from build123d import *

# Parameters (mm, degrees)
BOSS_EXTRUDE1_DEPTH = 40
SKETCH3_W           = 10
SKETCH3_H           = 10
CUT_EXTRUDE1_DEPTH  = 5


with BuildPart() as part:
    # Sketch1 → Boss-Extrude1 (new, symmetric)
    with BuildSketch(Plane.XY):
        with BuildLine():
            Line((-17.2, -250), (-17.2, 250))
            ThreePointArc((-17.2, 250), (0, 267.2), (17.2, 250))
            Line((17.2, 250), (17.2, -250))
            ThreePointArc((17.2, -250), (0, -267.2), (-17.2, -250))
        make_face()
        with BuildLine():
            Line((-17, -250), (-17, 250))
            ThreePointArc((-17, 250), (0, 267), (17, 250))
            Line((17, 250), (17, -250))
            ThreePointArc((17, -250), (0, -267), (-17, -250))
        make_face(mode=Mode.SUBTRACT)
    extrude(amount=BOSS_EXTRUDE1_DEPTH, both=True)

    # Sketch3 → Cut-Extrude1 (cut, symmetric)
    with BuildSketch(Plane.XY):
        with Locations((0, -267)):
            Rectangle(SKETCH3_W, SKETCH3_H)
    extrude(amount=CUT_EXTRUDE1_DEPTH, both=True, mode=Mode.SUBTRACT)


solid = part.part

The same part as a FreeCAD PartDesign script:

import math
import FreeCAD as App
import Part
import Sketcher
Q = App.Units.Quantity


def add_polygon(sketch, points):
    """Adds a closed chain of lines whose ends are joined by coincident constraints."""
    first, n = sketch.GeometryCount, len(points)
    for a, b in zip(points, points[1:] + points[:1]):
        sketch.addGeometry(Part.LineSegment(App.Vector(*a, 0), App.Vector(*b, 0)), False)
    for i in range(n):
        sketch.addConstraint(Sketcher.Constraint("Coincident", first + i, 2, first + (i + 1) % n, 1))

doc = App.newDocument("Part")
params = doc.addObject("Spreadsheet::Sheet", "Params")
for row, (alias, value) in enumerate([
    ("sketch1_radius", "17 mm"),
    ("sketch1_radius2", "17.2 mm"),
    ("sketch1_height", "500 mm"),
    ("pad1_length", "80 mm"),
    ("sketch2_width", "10 mm"),
    ("pocket1_length", "10 mm"),
], start=1):
    params.set(f"A{row}", alias)
    params.set(f"B{row}", "=" + value)
    params.setAlias(f"B{row}", alias)

body = doc.addObject("PartDesign::Body", "Body")

# Sketch on XY plane
sketch1 = body.newObject("Sketcher::SketchObject", "Sketch")
sketch1.AttachmentSupport = (doc.getObject("XY_Plane"), [""])
sketch1.MapMode = "FlatFace"
sketch1.addGeometry([
    Part.LineSegment(App.Vector(-17, 250, 0), App.Vector(-17, -250, 0)),  # 0
    Part.ArcOfCircle(Part.Circle(App.Vector(0, -250, 0), App.Vector(0, 0, 1), 17), math.radians(180), math.radians(360)),  # 1
    Part.LineSegment(App.Vector(17, -250, 0), App.Vector(17, 250, 0)),  # 2
    Part.ArcOfCircle(Part.Circle(App.Vector(0, 250, 0), App.Vector(0, 0, 1), 17), math.radians(0), math.radians(180)),  # 3
    Part.LineSegment(App.Vector(-17, -250, 0), App.Vector(-17, 250, 0)),  # 4
    Part.ArcOfCircle(Part.Circle(App.Vector(0, 250, 0), App.Vector(0, 0, 1), 17), math.radians(0), math.radians(180)),  # 5
    Part.LineSegment(App.Vector(17, 250, 0), App.Vector(17, -250, 0)),  # 6
    Part.ArcOfCircle(Part.Circle(App.Vector(0, -250, 0), App.Vector(0, 0, 1), 17), math.radians(180), math.radians(360)),  # 7
], False)
sketch1.addConstraint([
    Sketcher.Constraint("Tangent", 0, 2, 1, 1),
    Sketcher.Constraint("Tangent", 1, 2, 2, 1),
    Sketcher.Constraint("Tangent", 2, 2, 3, 1),
    Sketcher.Constraint("Tangent", 3, 2, 0, 1),
    Sketcher.Constraint("Tangent", 4, 2, 5, 2),
    Sketcher.Constraint("Tangent", 5, 1, 6, 1),
    Sketcher.Constraint("Tangent", 6, 2, 7, 2),
    Sketcher.Constraint("Tangent", 7, 1, 4, 1),
    Sketcher.Constraint("Vertical", 0),
    Sketcher.Constraint("Vertical", 2),
    Sketcher.Constraint("Vertical", 4),
    Sketcher.Constraint("Vertical", 6),
    Sketcher.Constraint("Coincident", 5, 3, 3, 3),
    Sketcher.Constraint("Symmetric", 1, 3, 3, 3, -1, 1),
    Sketcher.Constraint("Horizontal", 7, 3, 0, 2),
    Sketcher.Constraint("Radius", 5, Q("17 mm")),
    Sketcher.Constraint("Radius", 1, Q("17.2 mm")),
    Sketcher.Constraint("DistanceY", 0, 2, 0, 1, Q("500 mm")),
])
sketch1.setExpression("Constraints[15]", "Params.sketch1_radius")
sketch1.setExpression("Constraints[16]", "Params.sketch1_radius2")
sketch1.setExpression("Constraints[17]", "Params.sketch1_height")
pad1 = body.newObject("PartDesign::Pad", "Pad")
pad1.Profile = sketch1
pad1.setExpression("Length", "Params.pad1_length")
pad1.Midplane = True

# Sketch on XY plane
sketch2 = body.newObject("Sketcher::SketchObject", "Sketch001")
sketch2.AttachmentSupport = (doc.getObject("XY_Plane"), [""])
sketch2.MapMode = "FlatFace"
add_polygon(sketch2, [(-5, -262), (-5, -272), (5, -272), (5, -262)])  # lines 0-3
sketch2.addConstraint([
    Sketcher.Constraint("Vertical", 0),
    Sketcher.Constraint("Horizontal", 1),
    Sketcher.Constraint("Vertical", 2),
    Sketcher.Constraint("Horizontal", 3),
    Sketcher.Constraint("Equal", 3, 0),
    Sketcher.Constraint("DistanceX", 1, 1, 1, 2, Q("10 mm")),
    Sketcher.Constraint("DistanceX", 0, 2, -1, 1, Q("5 mm")),
    Sketcher.Constraint("DistanceY", 0, 2, -1, 1, Q("272 mm")),
])
sketch2.setExpression("Constraints[9]", "Params.sketch2_width")
pocket1 = body.newObject("PartDesign::Pocket", "Pocket")
pocket1.Profile = sketch2
pocket1.setExpression("Length", "Params.pocket1_length")
pocket1.Midplane = True

doc.recompute()
